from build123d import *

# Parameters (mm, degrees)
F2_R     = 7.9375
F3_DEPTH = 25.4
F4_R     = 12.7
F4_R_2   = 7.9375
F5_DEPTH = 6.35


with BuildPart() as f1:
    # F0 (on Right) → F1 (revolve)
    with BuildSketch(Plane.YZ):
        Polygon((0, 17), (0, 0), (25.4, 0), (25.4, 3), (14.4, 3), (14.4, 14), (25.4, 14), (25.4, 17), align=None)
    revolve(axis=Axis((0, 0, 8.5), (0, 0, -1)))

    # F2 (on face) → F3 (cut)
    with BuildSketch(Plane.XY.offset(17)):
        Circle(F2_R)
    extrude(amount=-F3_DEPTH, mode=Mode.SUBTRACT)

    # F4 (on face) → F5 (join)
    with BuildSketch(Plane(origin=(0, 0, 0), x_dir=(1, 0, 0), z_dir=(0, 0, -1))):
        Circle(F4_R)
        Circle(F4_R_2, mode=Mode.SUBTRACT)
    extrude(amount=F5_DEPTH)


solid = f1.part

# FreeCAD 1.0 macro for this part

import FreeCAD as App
import Part
import Sketcher
Q = App.Units.Quantity


def add_polygon(sketch, points):
    """Adds a closed chain of lines whose ends are joined by coincident constraints."""
    first, n = sketch.GeometryCount, len(points)
    for a, b in zip(points, points[1:] + points[:1]):
        sketch.addGeometry(Part.LineSegment(App.Vector(*a, 0), App.Vector(*b, 0)), False)
    for i in range(n):
        sketch.addConstraint(Sketcher.Constraint("Coincident", first + i, 2, first + (i + 1) % n, 1))

doc = App.newDocument("Part")
params = doc.addObject("Spreadsheet::Sheet", "Params")
for row, (alias, value) in enumerate([
    ("sketch1_width", "11 mm"),
    ("sketch1_height", "17 mm"),
    ("sketch1_width2", "25.4 mm"),
    ("revolution_angle", "360 deg"),
    ("pocket1_length", "25.4 mm"),
    ("sketch3_diameter", "25.4 mm"),
    ("pad1_length", "6.35 mm"),
], start=1):
    params.set(f"A{row}", alias)
    params.set(f"B{row}", "=" + value)
    params.setAlias(f"B{row}", alias)

body = doc.addObject("PartDesign::Body", "Body")

# Sketch on YZ plane
sketch1 = body.newObject("Sketcher::SketchObject", "Sketch")
sketch1.AttachmentSupport = (doc.getObject("YZ_Plane"), [""])
sketch1.MapMode = "FlatFace"
add_polygon(sketch1, [(0, 17), (0, 0), (25.4, 0), (25.4, 3), (14.4, 3), (14.4, 14), (25.4, 14), (25.4, 17)])  # lines 0-7
sketch1.addConstraint(Sketcher.Constraint("Vertical", 0))
sketch1.addConstraint(Sketcher.Constraint("Horizontal", 1))
sketch1.addConstraint(Sketcher.Constraint("Vertical", 2))
sketch1.addConstraint(Sketcher.Constraint("Horizontal", 3))
sketch1.addConstraint(Sketcher.Constraint("Vertical", 4))
sketch1.addConstraint(Sketcher.Constraint("Horizontal", 5))
sketch1.addConstraint(Sketcher.Constraint("Vertical", 6))
sketch1.addConstraint(Sketcher.Constraint("Horizontal", 7))
sketch1.addConstraint(Sketcher.Constraint("Coincident", 0, 2, -1, 1))
sketch1.addConstraint(Sketcher.Constraint("Vertical", 2, 2, 5, 2))
sketch1.addConstraint(Sketcher.Constraint("Equal", 5, 4))
sketch1.addConstraint(Sketcher.Constraint("Equal", 2, 6))
sketch1.addConstraint(Sketcher.Constraint("DistanceX", 3, 2, 3, 1, Q("11 mm")))
sketch1.addConstraint(Sketcher.Constraint("DistanceY", 0, 2, 0, 1, Q("17 mm")))
sketch1.addConstraint(Sketcher.Constraint("DistanceX", 1, 1, 1, 2, Q("25.4 mm")))
sketch1.setExpression("Constraints[20]", "Params.sketch1_width")
sketch1.setExpression("Constraints[21]", "Params.sketch1_height")
sketch1.setExpression("Constraints[22]", "Params.sketch1_width2")
revolution = body.newObject("PartDesign::Revolution", "Revolution")
revolution.Profile = sketch1
revolution.ReferenceAxis = (sketch1, ["V_Axis"])
revolution.setExpression("Angle", "Params.revolution_angle")

# Sketch on XY plane
sketch2 = body.newObject("Sketcher::SketchObject", "Sketch001")
sketch2.AttachmentSupport = (doc.getObject("XY_Plane"), [""])
sketch2.MapMode = "FlatFace"
sketch2.AttachmentOffset = App.Placement(App.Vector(0, 0, 17), App.Rotation())
sketch2.addGeometry(Part.Circle(App.Vector(0, 0, 0), App.Vector(0, 0, 1), 8), False)
sketch2.addConstraint(Sketcher.Constraint("Coincident", 0, 3, -1, 1))
sketch2.addConstraint(Sketcher.Constraint("Diameter", 0, Q("15.875 mm")))
pocket1 = body.newObject("PartDesign::Pocket", "Pocket")
pocket1.Profile = sketch2
pocket1.setExpression("Length", "Params.pocket1_length")

# Sketch on XY plane
sketch3 = body.newObject("Sketcher::SketchObject", "Sketch002")
sketch3.AttachmentSupport = (doc.getObject("XY_Plane"), [""])
sketch3.MapMode = "FlatFace"
sketch3.addGeometry(Part.Circle(App.Vector(0, 0, 0), App.Vector(0, 0, 1), 13), False)
sketch3.addGeometry(Part.Circle(App.Vector(0, 0, 0), App.Vector(0, 0, 1), 8), False)
sketch3.addConstraint(Sketcher.Constraint("Coincident", 0, 3, -1, 1))
sketch3.addConstraint(Sketcher.Constraint("Coincident", 1, 3, -1, 1))
sketch3.addConstraint(Sketcher.Constraint("Diameter", 0, Q("25.4 mm")))
sketch3.addConstraint(Sketcher.Constraint("Diameter", 1, Q("15.875 mm")))
sketch3.setExpression("Constraints[2]", "Params.sketch3_diameter")
pad1 = body.newObject("PartDesign::Pad", "Pad")
pad1.Profile = sketch3
pad1.setExpression("Length", "Params.pad1_length")
pad1.Reversed = True

doc.recompute()
